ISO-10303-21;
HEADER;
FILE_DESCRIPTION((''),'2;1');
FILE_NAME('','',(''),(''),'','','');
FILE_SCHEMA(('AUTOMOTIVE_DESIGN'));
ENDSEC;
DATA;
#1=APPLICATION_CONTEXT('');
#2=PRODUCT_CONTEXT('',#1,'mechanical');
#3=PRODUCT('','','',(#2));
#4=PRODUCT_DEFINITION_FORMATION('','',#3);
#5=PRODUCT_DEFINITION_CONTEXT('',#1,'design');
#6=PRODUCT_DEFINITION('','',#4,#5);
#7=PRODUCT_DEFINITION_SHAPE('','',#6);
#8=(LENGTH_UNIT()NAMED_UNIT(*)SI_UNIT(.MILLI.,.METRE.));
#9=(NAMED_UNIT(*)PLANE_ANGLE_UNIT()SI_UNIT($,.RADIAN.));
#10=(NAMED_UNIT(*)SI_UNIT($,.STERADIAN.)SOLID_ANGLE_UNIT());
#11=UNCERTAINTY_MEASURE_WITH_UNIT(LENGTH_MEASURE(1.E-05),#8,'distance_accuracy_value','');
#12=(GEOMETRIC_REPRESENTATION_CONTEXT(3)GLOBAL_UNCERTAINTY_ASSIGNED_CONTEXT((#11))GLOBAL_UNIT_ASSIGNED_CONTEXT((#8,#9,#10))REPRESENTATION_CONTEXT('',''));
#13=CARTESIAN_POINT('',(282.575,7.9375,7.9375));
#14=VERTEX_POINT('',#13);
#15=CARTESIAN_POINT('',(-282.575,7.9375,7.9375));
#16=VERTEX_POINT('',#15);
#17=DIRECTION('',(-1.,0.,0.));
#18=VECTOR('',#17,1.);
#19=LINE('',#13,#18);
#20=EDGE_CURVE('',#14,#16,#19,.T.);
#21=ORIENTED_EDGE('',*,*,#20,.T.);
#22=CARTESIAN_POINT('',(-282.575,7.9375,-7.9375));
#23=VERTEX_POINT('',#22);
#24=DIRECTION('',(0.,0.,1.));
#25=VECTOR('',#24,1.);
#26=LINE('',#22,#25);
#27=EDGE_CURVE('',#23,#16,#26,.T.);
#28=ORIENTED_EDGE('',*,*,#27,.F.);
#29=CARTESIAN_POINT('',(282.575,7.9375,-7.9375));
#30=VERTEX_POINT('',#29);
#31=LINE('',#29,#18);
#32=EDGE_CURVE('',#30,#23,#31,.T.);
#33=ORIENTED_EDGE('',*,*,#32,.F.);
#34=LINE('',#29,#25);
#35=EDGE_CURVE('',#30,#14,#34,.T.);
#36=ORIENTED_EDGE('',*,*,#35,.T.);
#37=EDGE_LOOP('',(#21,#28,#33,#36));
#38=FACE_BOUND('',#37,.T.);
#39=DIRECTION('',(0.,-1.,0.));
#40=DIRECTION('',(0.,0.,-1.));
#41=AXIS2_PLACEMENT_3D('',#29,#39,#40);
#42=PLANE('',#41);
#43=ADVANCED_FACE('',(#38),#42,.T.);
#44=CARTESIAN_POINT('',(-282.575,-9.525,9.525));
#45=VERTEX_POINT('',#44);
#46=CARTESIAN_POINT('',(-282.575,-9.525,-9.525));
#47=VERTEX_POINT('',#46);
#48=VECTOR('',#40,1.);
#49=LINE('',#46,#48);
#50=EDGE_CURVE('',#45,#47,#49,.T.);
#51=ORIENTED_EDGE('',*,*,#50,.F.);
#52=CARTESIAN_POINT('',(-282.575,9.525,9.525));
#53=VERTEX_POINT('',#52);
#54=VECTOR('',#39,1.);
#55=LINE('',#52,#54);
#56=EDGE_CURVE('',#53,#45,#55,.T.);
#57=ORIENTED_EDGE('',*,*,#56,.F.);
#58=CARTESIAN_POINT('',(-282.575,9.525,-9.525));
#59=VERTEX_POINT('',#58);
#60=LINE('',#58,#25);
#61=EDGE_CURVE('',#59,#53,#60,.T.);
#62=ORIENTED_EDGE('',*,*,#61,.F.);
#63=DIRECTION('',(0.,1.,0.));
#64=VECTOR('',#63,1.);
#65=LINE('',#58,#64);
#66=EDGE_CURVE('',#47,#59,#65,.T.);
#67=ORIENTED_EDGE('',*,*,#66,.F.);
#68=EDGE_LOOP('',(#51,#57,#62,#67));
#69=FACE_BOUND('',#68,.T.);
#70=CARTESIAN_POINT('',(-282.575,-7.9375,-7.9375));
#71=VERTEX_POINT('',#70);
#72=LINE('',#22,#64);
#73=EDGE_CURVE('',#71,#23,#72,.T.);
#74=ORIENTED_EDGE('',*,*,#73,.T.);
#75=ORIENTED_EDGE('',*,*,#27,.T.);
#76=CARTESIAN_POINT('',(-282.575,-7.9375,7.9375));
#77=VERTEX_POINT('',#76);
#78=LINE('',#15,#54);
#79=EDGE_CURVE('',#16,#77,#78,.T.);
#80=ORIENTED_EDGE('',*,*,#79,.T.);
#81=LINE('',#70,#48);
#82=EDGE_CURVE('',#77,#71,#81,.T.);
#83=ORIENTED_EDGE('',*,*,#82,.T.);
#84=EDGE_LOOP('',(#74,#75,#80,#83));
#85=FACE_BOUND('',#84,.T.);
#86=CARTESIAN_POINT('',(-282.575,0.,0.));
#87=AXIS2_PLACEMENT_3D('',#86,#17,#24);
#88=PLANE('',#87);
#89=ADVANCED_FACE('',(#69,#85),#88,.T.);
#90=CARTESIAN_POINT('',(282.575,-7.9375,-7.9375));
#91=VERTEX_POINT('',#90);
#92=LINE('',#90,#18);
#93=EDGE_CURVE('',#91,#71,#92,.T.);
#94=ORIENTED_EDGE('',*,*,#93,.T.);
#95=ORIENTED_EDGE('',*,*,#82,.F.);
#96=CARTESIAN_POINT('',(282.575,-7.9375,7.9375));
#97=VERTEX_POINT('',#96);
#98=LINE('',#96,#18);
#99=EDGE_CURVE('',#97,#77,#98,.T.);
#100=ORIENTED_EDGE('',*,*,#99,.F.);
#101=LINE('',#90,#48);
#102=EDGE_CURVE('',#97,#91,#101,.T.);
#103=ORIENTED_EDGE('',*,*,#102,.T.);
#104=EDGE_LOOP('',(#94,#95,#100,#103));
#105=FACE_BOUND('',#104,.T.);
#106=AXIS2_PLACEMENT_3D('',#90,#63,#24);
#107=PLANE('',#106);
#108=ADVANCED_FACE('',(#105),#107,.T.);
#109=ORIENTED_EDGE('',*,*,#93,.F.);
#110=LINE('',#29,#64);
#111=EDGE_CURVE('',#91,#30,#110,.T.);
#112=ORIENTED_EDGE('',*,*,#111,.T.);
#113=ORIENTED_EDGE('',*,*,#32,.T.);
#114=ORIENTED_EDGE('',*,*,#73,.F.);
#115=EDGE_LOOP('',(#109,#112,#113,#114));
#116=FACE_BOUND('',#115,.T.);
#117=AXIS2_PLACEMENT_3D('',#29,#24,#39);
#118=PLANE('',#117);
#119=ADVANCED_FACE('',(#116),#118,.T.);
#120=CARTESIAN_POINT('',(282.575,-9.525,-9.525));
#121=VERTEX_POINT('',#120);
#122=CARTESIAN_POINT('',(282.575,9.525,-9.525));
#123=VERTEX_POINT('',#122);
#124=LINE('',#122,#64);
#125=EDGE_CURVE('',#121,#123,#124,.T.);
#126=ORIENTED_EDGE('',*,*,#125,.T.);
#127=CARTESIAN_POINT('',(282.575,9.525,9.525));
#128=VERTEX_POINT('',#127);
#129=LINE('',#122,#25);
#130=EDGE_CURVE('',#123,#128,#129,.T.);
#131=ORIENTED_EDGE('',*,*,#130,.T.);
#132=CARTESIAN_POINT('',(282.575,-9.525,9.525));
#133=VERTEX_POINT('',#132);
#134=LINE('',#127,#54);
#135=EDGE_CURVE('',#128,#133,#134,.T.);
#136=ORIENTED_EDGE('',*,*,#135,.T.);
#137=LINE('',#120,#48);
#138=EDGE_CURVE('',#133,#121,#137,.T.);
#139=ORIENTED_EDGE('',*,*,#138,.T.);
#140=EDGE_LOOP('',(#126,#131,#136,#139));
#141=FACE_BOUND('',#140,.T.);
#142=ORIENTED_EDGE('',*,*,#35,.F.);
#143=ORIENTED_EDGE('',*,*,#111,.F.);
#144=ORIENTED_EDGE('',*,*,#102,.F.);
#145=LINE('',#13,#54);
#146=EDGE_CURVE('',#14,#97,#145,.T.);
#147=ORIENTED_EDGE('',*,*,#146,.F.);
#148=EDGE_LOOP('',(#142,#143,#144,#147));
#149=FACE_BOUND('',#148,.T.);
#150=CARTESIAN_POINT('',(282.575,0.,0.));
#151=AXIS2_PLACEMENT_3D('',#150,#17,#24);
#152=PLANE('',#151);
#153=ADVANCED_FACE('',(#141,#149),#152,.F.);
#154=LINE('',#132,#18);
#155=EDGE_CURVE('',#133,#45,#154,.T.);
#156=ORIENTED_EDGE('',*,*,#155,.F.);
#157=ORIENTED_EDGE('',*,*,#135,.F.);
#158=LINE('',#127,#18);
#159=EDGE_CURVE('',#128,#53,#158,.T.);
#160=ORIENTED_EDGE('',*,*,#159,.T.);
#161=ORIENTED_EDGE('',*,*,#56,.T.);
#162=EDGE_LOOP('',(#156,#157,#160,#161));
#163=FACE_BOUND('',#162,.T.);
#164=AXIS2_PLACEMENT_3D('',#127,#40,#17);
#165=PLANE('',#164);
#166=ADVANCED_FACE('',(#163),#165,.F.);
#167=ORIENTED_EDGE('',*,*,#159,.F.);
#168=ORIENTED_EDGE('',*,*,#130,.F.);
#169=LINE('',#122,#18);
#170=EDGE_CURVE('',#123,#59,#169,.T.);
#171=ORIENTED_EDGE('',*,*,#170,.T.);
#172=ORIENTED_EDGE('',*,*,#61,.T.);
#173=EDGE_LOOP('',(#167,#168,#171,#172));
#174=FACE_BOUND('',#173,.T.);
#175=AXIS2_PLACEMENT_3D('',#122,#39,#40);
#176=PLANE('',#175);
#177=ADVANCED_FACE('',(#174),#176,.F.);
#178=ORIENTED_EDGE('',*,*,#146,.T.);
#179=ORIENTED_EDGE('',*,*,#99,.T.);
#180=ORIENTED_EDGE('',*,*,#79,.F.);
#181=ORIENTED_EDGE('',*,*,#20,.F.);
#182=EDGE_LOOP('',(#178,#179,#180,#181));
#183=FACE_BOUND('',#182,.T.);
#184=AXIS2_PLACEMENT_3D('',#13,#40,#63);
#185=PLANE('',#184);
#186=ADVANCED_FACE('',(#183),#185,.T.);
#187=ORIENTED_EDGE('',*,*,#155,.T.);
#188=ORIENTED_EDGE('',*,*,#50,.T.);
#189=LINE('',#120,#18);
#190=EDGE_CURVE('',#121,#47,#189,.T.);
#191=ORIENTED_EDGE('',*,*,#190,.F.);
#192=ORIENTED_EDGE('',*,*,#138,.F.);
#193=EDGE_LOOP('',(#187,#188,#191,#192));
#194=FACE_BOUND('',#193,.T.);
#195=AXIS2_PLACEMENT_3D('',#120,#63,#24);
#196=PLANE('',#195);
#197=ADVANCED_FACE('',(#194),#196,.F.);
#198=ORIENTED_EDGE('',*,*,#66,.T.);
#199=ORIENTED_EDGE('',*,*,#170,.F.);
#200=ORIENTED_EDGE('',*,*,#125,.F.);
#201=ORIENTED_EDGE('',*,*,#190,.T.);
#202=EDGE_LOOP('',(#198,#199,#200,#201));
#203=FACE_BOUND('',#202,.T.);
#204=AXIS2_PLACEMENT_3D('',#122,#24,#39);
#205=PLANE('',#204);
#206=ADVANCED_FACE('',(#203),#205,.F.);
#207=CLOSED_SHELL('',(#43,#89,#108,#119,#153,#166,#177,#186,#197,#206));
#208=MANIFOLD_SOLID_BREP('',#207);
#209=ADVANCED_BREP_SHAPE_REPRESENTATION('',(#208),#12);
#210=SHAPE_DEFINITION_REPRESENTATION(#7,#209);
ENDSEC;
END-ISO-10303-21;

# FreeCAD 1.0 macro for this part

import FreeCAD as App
import Part
import Sketcher
from FreeCAD import Vector
Q = App.Units.Quantity


def add_polygon(sketch, points):
    """Adds a closed chain of lines whose ends are joined by coincident constraints."""
    first, n = sketch.GeometryCount, len(points)
    for a, b in zip(points, points[1:] + points[:1]):
        sketch.addGeometry(Part.LineSegment(App.Vector(*a, 0), App.Vector(*b, 0)), False)
    for i in range(n):
        sketch.addConstraint(Sketcher.Constraint("Coincident", first + i, 2, first + (i + 1) % n, 1))

doc = App.newDocument("Part")
body = doc.addObject("PartDesign::Body", "Body")

# Sketch on YZ plane
sketch1 = body.newObject("Sketcher::SketchObject", "Sketch")
sketch1.AttachmentSupport = (doc.getObject("YZ_Plane"), [""])
sketch1.MapMode = "FlatFace"
add_polygon(sketch1, [(10, 10), (-10, 10), (-10, -10), (10, -10)])  # lines 0-3
add_polygon(sketch1, [(-8, -8), (-8, 8), (8, 8), (8, -8)])  # lines 4-7
sketch1.addConstraint([
    Sketcher.Constraint("Horizontal", 0),
    Sketcher.Constraint("Vertical", 1),
    Sketcher.Constraint("Horizontal", 2),
    Sketcher.Constraint("Vertical", 3),
    Sketcher.Constraint("Vertical", 4),
    Sketcher.Constraint("Horizontal", 5),
    Sketcher.Constraint("Vertical", 6),
    Sketcher.Constraint("Horizontal", 7),
    Sketcher.Constraint("Symmetric", 0, 2, 2, 2, -1, 1),
    Sketcher.Constraint("Symmetric", 4, 2, 6, 2, -1, 1),
    Sketcher.Constraint("Equal", 2, 1),
    Sketcher.Constraint("Equal", 7, 4),
    Sketcher.Constraint("DistanceX", 0, 2, 0, 1, Q("0.75 in")),
    Sketcher.Constraint("DistanceX", 5, 1, 5, 2, Q("0.625 in")),
])
pad1 = body.newObject("PartDesign::Pad", "Pad")
pad1.Profile = sketch1
pad1.Length = Q("22.25 in")
pad1.Midplane = True

doc.recompute()
